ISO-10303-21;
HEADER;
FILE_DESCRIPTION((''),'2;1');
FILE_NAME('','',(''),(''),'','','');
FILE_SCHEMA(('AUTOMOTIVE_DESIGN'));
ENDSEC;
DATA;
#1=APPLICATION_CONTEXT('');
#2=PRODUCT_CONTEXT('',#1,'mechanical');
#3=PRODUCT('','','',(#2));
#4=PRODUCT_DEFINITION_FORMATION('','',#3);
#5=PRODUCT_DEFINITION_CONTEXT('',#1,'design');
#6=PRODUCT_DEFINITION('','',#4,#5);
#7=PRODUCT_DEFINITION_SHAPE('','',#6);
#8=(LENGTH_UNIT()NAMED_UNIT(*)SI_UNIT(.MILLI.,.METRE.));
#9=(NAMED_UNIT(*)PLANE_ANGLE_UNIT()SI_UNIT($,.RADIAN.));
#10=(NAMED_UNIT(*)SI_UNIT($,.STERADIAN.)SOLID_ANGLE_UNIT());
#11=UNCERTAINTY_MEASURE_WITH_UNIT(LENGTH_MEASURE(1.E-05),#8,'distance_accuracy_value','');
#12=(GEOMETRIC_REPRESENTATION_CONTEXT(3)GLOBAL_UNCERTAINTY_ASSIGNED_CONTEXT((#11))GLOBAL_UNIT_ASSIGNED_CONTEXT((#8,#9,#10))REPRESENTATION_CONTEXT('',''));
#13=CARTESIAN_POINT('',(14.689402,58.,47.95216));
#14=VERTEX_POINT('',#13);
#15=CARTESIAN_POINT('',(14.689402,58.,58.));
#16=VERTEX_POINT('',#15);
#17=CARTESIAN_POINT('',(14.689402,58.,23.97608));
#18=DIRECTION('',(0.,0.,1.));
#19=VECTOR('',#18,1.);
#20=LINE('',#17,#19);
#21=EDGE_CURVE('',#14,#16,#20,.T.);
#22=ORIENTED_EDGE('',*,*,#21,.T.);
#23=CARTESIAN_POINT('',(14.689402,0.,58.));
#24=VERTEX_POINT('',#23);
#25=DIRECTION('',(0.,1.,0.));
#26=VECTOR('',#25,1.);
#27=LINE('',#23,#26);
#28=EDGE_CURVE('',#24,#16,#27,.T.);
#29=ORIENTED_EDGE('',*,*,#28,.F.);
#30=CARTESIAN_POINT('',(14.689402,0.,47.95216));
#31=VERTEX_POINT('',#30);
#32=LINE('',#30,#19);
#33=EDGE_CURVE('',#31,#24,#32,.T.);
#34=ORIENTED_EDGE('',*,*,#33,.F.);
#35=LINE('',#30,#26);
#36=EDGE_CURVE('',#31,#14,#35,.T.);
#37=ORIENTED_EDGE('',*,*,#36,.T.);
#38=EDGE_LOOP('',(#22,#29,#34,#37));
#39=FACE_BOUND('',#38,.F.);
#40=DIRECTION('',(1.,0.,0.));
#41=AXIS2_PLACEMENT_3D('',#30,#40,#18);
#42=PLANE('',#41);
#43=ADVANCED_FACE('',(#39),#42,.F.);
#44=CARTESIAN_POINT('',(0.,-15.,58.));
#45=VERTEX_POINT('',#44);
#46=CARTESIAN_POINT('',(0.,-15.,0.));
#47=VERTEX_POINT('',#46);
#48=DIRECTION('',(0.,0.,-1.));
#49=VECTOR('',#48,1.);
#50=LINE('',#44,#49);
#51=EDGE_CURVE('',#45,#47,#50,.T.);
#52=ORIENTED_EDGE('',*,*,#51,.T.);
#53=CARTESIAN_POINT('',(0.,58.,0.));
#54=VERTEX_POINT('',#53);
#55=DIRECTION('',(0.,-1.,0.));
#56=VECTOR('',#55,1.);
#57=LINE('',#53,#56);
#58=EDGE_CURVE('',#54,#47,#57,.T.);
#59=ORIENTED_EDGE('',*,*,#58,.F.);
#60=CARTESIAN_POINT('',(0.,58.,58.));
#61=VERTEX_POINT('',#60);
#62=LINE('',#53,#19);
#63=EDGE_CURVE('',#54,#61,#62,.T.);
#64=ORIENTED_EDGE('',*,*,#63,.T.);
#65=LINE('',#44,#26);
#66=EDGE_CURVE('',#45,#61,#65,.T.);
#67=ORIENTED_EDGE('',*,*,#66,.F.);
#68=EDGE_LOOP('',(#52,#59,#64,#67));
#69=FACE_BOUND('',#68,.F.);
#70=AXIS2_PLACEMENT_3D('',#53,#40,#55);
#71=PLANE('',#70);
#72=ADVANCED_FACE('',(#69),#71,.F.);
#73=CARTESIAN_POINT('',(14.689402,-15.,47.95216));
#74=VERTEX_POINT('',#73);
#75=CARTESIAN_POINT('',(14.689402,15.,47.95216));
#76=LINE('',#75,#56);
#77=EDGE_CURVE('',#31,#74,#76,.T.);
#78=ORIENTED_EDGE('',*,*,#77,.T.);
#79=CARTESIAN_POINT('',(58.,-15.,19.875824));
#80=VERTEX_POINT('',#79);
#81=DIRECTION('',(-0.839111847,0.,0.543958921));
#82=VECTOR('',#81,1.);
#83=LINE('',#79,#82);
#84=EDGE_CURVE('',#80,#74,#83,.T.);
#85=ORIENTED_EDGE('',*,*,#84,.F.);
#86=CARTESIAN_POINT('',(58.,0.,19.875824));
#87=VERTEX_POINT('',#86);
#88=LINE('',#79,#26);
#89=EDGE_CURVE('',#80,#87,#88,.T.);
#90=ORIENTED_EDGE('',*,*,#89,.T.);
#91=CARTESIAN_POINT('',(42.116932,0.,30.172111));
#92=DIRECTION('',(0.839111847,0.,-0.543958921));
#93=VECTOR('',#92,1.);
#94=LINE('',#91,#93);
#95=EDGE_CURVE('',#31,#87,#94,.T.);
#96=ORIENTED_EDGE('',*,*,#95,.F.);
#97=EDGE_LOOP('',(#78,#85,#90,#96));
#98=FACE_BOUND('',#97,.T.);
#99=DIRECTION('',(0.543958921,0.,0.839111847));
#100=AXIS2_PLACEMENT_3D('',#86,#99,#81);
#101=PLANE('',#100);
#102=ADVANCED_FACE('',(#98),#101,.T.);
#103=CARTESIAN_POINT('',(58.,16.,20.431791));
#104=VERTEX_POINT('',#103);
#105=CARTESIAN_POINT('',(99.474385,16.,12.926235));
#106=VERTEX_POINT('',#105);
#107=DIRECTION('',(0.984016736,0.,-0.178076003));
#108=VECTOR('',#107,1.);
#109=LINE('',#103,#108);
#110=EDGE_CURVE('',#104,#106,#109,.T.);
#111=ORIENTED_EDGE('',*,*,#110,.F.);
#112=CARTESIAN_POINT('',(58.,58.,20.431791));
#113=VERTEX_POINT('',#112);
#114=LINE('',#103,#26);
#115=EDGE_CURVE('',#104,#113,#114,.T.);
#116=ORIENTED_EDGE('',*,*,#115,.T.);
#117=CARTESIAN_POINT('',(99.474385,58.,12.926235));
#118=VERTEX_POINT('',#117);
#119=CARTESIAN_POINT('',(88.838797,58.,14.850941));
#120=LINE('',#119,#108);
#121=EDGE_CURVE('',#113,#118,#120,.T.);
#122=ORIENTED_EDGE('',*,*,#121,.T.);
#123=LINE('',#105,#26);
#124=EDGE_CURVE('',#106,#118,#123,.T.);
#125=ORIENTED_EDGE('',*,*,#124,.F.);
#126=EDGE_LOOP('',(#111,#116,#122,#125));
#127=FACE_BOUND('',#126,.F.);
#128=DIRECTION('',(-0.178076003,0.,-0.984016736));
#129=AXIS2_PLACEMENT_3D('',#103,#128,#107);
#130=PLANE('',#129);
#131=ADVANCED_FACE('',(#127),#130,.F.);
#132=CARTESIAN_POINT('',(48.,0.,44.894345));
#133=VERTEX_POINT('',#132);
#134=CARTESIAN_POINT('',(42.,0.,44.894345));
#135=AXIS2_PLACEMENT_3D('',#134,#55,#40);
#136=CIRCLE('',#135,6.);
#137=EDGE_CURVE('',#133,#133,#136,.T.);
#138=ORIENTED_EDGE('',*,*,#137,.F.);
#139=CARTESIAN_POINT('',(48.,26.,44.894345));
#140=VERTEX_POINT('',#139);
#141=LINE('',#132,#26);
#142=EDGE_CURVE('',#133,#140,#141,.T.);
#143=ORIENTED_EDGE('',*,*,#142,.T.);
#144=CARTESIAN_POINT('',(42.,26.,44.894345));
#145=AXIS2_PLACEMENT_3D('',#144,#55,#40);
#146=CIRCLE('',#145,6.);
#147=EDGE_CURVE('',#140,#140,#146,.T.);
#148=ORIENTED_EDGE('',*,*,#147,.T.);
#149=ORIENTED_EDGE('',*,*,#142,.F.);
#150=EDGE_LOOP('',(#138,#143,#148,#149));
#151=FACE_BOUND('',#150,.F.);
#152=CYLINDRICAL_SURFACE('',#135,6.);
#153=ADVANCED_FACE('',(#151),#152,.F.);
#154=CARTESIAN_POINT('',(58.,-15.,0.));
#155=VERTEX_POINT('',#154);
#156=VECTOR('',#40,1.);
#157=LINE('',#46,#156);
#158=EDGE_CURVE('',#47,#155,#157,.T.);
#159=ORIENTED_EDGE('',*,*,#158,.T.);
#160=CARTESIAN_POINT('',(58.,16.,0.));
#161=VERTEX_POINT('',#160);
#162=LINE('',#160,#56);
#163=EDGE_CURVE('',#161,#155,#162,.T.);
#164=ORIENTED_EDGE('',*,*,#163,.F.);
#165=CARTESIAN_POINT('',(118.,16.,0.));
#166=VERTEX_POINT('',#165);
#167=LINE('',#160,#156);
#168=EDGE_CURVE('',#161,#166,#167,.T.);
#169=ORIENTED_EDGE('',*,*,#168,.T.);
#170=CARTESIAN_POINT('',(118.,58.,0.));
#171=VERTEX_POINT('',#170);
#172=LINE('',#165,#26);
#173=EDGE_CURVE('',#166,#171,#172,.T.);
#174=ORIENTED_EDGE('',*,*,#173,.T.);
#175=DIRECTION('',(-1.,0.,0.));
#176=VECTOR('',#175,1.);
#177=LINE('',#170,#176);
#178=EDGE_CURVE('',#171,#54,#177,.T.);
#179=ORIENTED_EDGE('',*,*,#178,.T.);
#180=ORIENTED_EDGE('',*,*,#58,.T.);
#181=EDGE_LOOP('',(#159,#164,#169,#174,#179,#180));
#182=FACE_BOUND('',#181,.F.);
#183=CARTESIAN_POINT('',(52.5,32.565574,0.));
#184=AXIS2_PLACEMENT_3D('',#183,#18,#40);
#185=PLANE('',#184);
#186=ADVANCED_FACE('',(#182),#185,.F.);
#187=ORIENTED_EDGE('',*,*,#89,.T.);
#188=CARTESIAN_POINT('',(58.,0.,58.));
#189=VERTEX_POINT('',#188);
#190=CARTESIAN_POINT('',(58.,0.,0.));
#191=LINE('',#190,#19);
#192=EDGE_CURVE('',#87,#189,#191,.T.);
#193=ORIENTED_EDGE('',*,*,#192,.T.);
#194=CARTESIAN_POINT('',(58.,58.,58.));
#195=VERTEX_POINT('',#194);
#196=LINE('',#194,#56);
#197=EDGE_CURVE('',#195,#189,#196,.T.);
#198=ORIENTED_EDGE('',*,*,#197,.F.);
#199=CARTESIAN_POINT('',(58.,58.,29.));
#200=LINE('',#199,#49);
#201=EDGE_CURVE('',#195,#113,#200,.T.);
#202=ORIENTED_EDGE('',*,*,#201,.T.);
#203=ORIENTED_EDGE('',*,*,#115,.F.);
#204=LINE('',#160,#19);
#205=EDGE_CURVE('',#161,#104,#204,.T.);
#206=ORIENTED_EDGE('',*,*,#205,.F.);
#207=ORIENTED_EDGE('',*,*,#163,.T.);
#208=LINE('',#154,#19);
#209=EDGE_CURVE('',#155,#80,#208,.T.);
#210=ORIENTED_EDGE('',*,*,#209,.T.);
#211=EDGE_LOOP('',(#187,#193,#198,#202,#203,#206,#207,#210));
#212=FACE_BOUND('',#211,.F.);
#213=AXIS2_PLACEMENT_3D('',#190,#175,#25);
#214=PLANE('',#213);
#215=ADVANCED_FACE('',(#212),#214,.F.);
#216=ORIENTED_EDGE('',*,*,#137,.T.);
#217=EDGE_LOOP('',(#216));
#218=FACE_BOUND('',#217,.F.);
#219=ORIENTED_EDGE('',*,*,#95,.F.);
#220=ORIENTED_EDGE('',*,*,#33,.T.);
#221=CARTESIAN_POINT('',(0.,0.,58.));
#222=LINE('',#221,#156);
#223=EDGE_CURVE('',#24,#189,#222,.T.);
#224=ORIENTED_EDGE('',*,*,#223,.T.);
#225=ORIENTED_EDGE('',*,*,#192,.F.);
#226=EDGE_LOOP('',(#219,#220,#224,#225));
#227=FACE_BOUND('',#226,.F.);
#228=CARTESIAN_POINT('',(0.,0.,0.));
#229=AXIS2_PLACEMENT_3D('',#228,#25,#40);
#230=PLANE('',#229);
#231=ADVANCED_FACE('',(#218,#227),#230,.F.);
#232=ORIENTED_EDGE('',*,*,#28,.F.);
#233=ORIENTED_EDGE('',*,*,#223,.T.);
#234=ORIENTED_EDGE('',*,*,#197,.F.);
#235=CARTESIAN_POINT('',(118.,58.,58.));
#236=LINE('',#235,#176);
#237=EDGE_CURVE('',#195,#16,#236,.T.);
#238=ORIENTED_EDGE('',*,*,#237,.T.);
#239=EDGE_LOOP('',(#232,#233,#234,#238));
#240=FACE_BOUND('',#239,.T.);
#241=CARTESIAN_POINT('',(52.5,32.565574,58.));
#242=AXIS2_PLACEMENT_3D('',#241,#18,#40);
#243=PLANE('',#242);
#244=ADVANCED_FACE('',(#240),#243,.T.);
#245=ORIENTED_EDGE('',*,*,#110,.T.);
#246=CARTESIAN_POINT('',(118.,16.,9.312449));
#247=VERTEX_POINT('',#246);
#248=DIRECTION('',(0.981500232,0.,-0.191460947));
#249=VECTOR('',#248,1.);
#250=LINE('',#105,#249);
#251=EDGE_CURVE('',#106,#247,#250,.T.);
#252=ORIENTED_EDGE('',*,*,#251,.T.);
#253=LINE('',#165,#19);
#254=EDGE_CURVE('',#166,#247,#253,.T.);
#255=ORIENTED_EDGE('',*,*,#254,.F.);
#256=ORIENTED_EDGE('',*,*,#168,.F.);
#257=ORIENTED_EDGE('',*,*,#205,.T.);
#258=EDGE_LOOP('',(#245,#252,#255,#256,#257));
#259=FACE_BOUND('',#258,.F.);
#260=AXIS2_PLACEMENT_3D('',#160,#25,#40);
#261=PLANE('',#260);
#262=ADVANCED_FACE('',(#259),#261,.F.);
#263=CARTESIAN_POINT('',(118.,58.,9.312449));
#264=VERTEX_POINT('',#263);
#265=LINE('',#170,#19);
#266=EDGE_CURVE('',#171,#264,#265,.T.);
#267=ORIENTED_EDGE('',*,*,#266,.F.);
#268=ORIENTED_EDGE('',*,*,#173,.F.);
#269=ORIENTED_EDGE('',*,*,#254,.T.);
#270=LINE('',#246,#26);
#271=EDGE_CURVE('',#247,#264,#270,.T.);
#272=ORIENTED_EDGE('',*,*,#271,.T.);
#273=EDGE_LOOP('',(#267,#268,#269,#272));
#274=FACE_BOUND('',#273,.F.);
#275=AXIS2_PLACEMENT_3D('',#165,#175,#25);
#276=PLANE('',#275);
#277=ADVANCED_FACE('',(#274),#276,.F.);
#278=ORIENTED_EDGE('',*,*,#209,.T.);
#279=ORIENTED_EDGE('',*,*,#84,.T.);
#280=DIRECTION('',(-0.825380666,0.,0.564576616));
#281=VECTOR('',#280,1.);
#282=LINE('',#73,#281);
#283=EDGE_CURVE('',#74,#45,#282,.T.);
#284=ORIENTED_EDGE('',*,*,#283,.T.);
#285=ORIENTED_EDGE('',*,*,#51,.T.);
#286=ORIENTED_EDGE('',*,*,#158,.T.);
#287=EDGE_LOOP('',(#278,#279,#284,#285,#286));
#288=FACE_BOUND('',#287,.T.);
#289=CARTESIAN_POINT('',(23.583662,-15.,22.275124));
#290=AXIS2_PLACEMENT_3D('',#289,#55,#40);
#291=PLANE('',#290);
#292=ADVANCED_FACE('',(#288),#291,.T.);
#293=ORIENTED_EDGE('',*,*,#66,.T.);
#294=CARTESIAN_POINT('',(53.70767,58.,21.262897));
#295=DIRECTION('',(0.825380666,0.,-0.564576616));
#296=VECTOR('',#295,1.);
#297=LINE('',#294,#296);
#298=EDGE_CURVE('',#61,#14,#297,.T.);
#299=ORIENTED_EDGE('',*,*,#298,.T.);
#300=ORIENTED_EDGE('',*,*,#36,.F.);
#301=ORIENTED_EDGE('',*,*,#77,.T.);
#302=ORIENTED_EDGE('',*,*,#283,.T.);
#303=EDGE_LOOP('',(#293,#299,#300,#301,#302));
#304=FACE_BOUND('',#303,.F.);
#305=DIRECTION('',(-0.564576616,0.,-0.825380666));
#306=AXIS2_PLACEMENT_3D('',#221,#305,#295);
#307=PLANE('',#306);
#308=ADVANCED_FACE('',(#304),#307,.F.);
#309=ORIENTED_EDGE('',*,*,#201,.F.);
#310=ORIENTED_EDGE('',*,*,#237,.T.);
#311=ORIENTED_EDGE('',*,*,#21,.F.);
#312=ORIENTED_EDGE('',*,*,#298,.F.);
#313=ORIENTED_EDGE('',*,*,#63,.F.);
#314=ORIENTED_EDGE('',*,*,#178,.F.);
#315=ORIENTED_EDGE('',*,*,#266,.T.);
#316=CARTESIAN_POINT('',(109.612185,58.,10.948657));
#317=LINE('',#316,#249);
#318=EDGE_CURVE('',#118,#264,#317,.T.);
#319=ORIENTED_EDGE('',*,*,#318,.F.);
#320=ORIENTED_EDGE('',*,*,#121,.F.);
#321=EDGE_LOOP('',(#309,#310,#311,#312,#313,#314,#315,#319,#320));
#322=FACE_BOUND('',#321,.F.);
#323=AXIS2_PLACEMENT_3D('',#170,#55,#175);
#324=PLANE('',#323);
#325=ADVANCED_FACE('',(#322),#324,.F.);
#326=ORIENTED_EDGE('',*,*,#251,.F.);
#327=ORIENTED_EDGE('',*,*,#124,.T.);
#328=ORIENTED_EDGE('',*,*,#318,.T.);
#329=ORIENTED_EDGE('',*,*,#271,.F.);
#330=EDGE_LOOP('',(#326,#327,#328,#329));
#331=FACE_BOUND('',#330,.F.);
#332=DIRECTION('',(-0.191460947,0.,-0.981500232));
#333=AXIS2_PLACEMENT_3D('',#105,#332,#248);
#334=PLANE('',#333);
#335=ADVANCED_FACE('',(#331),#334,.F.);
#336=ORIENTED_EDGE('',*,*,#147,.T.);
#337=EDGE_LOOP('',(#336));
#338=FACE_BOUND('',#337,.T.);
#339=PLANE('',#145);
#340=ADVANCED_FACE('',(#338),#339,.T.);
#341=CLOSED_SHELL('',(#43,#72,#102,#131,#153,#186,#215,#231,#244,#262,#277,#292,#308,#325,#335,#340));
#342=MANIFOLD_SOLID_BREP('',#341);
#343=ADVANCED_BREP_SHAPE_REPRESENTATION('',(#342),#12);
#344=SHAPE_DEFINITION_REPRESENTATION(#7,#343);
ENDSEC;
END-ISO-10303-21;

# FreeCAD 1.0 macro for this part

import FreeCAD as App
import Part
import Sketcher

V = App.Vector
Q = App.Units.Quantity

doc = App.newDocument("Part")
body = doc.addObject("PartDesign::Body", "Body")

# Sketch on XY plane
sketch1 = body.newObject("Sketcher::SketchObject", "Sketch")
sketch1.AttachmentSupport = (doc.getObject("XY_Plane"), [""])
sketch1.MapMode = "FlatFace"
sketch1.addGeometry(Part.LineSegment(V(0, 58, 0), V(0, 0, 0)), False)
sketch1.addGeometry(Part.LineSegment(V(0, 0, 0), V(58, 0, 0)), False)
sketch1.addGeometry(Part.LineSegment(V(58, 0, 0), V(58, 16, 0)), False)
sketch1.addGeometry(Part.LineSegment(V(58, 16, 0), V(118, 16, 0)), False)
sketch1.addGeometry(Part.LineSegment(V(118, 16, 0), V(118, 58, 0)), False)
sketch1.addGeometry(Part.LineSegment(V(118, 58, 0), V(0, 58, 0)), False)
sketch1.addConstraint(Sketcher.Constraint("Coincident", 0, 2, 1, 1))
sketch1.addConstraint(Sketcher.Constraint("Coincident", 1, 2, 2, 1))
sketch1.addConstraint(Sketcher.Constraint("Coincident", 2, 2, 3, 1))
sketch1.addConstraint(Sketcher.Constraint("Coincident", 3, 2, 4, 1))
sketch1.addConstraint(Sketcher.Constraint("Coincident", 4, 2, 5, 1))
sketch1.addConstraint(Sketcher.Constraint("Coincident", 5, 2, 0, 1))
sketch1.addConstraint(Sketcher.Constraint("Vertical", 0))
sketch1.addConstraint(Sketcher.Constraint("Horizontal", 1))
sketch1.addConstraint(Sketcher.Constraint("Vertical", 2))
sketch1.addConstraint(Sketcher.Constraint("Horizontal", 3))
sketch1.addConstraint(Sketcher.Constraint("Vertical", 4))
sketch1.addConstraint(Sketcher.Constraint("Horizontal", 5))
sketch1.addConstraint(Sketcher.Constraint("Coincident", 0, 2, -1, 1))
sketch1.addConstraint(Sketcher.Constraint("Equal", 1, 0))
sketch1.addConstraint(Sketcher.Constraint("DistanceX", 1, 1, 1, 2, Q("58 mm")))
sketch1.addConstraint(Sketcher.Constraint("DistanceX", 3, 1, 3, 2, Q("60 mm")))
sketch1.addConstraint(Sketcher.Constraint("DistanceY", 2, 1, 2, 2, Q("16 mm")))
pad1 = body.newObject("PartDesign::Pad", "Pad")
pad1.Profile = sketch1
pad1.Length = 58

# Sketch on XZ plane
sketch2 = body.newObject("Sketcher::SketchObject", "Sketch001")
sketch2.AttachmentSupport = (doc.getObject("XZ_Plane"), [""])
sketch2.MapMode = "FlatFace"
sketch2.addGeometry(Part.LineSegment(V(15, 58, 0), V(0, 58, 0)), False)
sketch2.addGeometry(Part.LineSegment(V(0, 58, 0), V(15, 48, 0)), False)
sketch2.addGeometry(Part.LineSegment(V(15, 48, 0), V(15, 58, 0)), False)
sketch2.addConstraint(Sketcher.Constraint("Coincident", 0, 2, 1, 1))
sketch2.addConstraint(Sketcher.Constraint("Coincident", 1, 2, 2, 1))
sketch2.addConstraint(Sketcher.Constraint("Coincident", 2, 2, 0, 1))
sketch2.addConstraint(Sketcher.Constraint("Horizontal", 0))
sketch2.addConstraint(Sketcher.Constraint("Vertical", 2))
sketch2.addConstraint(Sketcher.Constraint("PointOnObject", 0, 2, -2))
sketch2.addConstraint(Sketcher.Constraint("DistanceY", -1, 1, 0, 2, Q("58 mm")))
sketch2.addConstraint(Sketcher.Constraint("DistanceY", 2, 1, 2, 2, Q("10.04784 mm")))
sketch2.addConstraint(Sketcher.Constraint("DistanceX", 0, 2, 0, 1, Q("14.689402 mm")))
pocket1 = body.newObject("PartDesign::Pocket", "Pocket")
pocket1.Profile = sketch2
pocket1.Type = "ThroughAll"

# Sketch on XZ plane
sketch3 = body.newObject("Sketcher::SketchObject", "Sketch002")
sketch3.AttachmentSupport = (doc.getObject("XZ_Plane"), [""])
sketch3.MapMode = "FlatFace"
sketch3.AttachmentOffset = App.Placement(V(0, 0, -16), App.Rotation())
sketch3.addGeometry(Part.LineSegment(V(118, 58, 0), V(98, 58, 0)), False)
sketch3.addGeometry(Part.LineSegment(V(98, 58, 0), V(99, 13, 0)), False)
sketch3.addGeometry(Part.LineSegment(V(99, 13, 0), V(118, 9, 0)), False)
sketch3.addGeometry(Part.LineSegment(V(118, 9, 0), V(118, 58, 0)), False)
sketch3.addConstraint(Sketcher.Constraint("Coincident", 0, 2, 1, 1))
sketch3.addConstraint(Sketcher.Constraint("Coincident", 1, 2, 2, 1))
sketch3.addConstraint(Sketcher.Constraint("Coincident", 2, 2, 3, 1))
sketch3.addConstraint(Sketcher.Constraint("Coincident", 3, 2, 0, 1))
sketch3.addConstraint(Sketcher.Constraint("Horizontal", 0))
sketch3.addConstraint(Sketcher.Constraint("Vertical", 3))
sketch3.addConstraint(Sketcher.Constraint("DistanceY", -1, 1, 0, 2, Q("58 mm")))
sketch3.addConstraint(Sketcher.Constraint("DistanceX", -1, 1, 2, 2, Q("118 mm")))
sketch3.addConstraint(Sketcher.Constraint("DistanceY", 3, 1, 3, 2, Q("48.687551 mm")))
sketch3.addConstraint(Sketcher.Constraint("Distance", 1, Q("45.115748 mm")))
sketch3.addConstraint(Sketcher.Constraint("DistanceX", 0, 2, 0, 1, Q("20.471498 mm")))
sketch3.addConstraint(Sketcher.Constraint("Distance", 2, Q("18.874794 mm")))
pocket2 = body.newObject("PartDesign::Pocket", "Pocket001")
pocket2.Profile = sketch3
pocket2.Type = "ThroughAll"

# Sketch on XZ plane
sketch4 = body.newObject("Sketcher::SketchObject", "Sketch003")
sketch4.AttachmentSupport = (doc.getObject("XZ_Plane"), [""])
sketch4.MapMode = "FlatFace"
sketch4.addGeometry(Part.LineSegment(V(58, 20, 0), V(15, 48, 0)), False)
sketch4.addGeometry(Part.LineSegment(V(15, 48, 0), V(0, 58, 0)), False)
sketch4.addGeometry(Part.LineSegment(V(0, 58, 0), V(0, 0, 0)), False)
sketch4.addGeometry(Part.LineSegment(V(0, 0, 0), V(58, 0, 0)), False)
sketch4.addGeometry(Part.LineSegment(V(58, 0, 0), V(58, 20, 0)), False)
sketch4.addConstraint(Sketcher.Constraint("Coincident", 0, 2, 1, 1))
sketch4.addConstraint(Sketcher.Constraint("Coincident", 1, 2, 2, 1))
sketch4.addConstraint(Sketcher.Constraint("Coincident", 2, 2, 3, 1))
sketch4.addConstraint(Sketcher.Constraint("Coincident", 3, 2, 4, 1))
sketch4.addConstraint(Sketcher.Constraint("Coincident", 4, 2, 0, 1))
sketch4.addConstraint(Sketcher.Constraint("Vertical", 2))
sketch4.addConstraint(Sketcher.Constraint("Horizontal", 3))
sketch4.addConstraint(Sketcher.Constraint("Vertical", 4))
sketch4.addConstraint(Sketcher.Constraint("Coincident", 2, 2, -1, 1))
sketch4.addConstraint(Sketcher.Constraint("Equal", 3, 2))
sketch4.addConstraint(Sketcher.Constraint("DistanceX", 3, 1, 3, 2, Q("58 mm")))
sketch4.addConstraint(Sketcher.Constraint("Distance", 0, Q("51.614809 mm")))
sketch4.addConstraint(Sketcher.Constraint("DistanceY", 4, 1, 4, 2, Q("19.875824 mm")))
sketch4.addConstraint(Sketcher.Constraint("DistanceY", -1, 1, 0, 2, Q("47.95216 mm")))
pad2 = body.newObject("PartDesign::Pad", "Pad001")
pad2.Profile = sketch4
pad2.Length = 30
pad2.Midplane = True

# Sketch on XZ plane
sketch5 = body.newObject("Sketcher::SketchObject", "Sketch004")
sketch5.AttachmentSupport = (doc.getObject("XZ_Plane"), [""])
sketch5.MapMode = "FlatFace"
sketch5.AttachmentOffset = App.Placement(V(0, 0, -16), App.Rotation())
sketch5.addGeometry(Part.LineSegment(V(98, 58, 0), V(58, 58, 0)), False)
sketch5.addGeometry(Part.LineSegment(V(58, 58, 0), V(58, 20, 0)), False)
sketch5.addGeometry(Part.LineSegment(V(58, 20, 0), V(99, 13, 0)), False)
sketch5.addGeometry(Part.LineSegment(V(99, 13, 0), V(98, 58, 0)), False)
sketch5.addConstraint(Sketcher.Constraint("Coincident", 0, 2, 1, 1))
sketch5.addConstraint(Sketcher.Constraint("Coincident", 1, 2, 2, 1))
sketch5.addConstraint(Sketcher.Constraint("Coincident", 2, 2, 3, 1))
sketch5.addConstraint(Sketcher.Constraint("Coincident", 3, 2, 0, 1))
sketch5.addConstraint(Sketcher.Constraint("Horizontal", 0))
sketch5.addConstraint(Sketcher.Constraint("Vertical", 1))
sketch5.addConstraint(Sketcher.Constraint("DistanceX", -1, 1, 0, 2, Q("58 mm")))
sketch5.addConstraint(Sketcher.Constraint("DistanceY", -1, 1, 0, 2, Q("58 mm")))
sketch5.addConstraint(Sketcher.Constraint("DistanceY", 1, 2, 1, 1, Q("37.568209 mm")))
sketch5.addConstraint(Sketcher.Constraint("Distance", 2, Q("42.148048 mm")))
sketch5.addConstraint(Sketcher.Constraint("Distance", 3, Q("45.115748 mm")))
sketch5.addConstraint(Sketcher.Constraint("DistanceX", 0, 2, 0, 1, Q("39.528502 mm")))
pocket3 = body.newObject("PartDesign::Pocket", "Pocket002")
pocket3.Profile = sketch5
pocket3.Type = "ThroughAll"

# Sketch on XZ plane
sketch6 = body.newObject("Sketcher::SketchObject", "Sketch005")
sketch6.AttachmentSupport = (doc.getObject("XZ_Plane"), [""])
sketch6.MapMode = "FlatFace"
sketch6.addGeometry(Part.Circle(V(42, 45, 0), V(0, 0, 1), 6), False)
sketch6.addConstraint(Sketcher.Constraint("Diameter", 0, Q("12 mm")))
sketch6.addConstraint(Sketcher.Constraint("DistanceX", -1, 1, 0, 3, Q("42 mm")))
sketch6.addConstraint(Sketcher.Constraint("DistanceY", -1, 1, 0, 3, Q("44.894345 mm")))
pocket4 = body.newObject("PartDesign::Pocket", "Pocket003")
pocket4.Profile = sketch6
pocket4.Length = 26

doc.recompute()
